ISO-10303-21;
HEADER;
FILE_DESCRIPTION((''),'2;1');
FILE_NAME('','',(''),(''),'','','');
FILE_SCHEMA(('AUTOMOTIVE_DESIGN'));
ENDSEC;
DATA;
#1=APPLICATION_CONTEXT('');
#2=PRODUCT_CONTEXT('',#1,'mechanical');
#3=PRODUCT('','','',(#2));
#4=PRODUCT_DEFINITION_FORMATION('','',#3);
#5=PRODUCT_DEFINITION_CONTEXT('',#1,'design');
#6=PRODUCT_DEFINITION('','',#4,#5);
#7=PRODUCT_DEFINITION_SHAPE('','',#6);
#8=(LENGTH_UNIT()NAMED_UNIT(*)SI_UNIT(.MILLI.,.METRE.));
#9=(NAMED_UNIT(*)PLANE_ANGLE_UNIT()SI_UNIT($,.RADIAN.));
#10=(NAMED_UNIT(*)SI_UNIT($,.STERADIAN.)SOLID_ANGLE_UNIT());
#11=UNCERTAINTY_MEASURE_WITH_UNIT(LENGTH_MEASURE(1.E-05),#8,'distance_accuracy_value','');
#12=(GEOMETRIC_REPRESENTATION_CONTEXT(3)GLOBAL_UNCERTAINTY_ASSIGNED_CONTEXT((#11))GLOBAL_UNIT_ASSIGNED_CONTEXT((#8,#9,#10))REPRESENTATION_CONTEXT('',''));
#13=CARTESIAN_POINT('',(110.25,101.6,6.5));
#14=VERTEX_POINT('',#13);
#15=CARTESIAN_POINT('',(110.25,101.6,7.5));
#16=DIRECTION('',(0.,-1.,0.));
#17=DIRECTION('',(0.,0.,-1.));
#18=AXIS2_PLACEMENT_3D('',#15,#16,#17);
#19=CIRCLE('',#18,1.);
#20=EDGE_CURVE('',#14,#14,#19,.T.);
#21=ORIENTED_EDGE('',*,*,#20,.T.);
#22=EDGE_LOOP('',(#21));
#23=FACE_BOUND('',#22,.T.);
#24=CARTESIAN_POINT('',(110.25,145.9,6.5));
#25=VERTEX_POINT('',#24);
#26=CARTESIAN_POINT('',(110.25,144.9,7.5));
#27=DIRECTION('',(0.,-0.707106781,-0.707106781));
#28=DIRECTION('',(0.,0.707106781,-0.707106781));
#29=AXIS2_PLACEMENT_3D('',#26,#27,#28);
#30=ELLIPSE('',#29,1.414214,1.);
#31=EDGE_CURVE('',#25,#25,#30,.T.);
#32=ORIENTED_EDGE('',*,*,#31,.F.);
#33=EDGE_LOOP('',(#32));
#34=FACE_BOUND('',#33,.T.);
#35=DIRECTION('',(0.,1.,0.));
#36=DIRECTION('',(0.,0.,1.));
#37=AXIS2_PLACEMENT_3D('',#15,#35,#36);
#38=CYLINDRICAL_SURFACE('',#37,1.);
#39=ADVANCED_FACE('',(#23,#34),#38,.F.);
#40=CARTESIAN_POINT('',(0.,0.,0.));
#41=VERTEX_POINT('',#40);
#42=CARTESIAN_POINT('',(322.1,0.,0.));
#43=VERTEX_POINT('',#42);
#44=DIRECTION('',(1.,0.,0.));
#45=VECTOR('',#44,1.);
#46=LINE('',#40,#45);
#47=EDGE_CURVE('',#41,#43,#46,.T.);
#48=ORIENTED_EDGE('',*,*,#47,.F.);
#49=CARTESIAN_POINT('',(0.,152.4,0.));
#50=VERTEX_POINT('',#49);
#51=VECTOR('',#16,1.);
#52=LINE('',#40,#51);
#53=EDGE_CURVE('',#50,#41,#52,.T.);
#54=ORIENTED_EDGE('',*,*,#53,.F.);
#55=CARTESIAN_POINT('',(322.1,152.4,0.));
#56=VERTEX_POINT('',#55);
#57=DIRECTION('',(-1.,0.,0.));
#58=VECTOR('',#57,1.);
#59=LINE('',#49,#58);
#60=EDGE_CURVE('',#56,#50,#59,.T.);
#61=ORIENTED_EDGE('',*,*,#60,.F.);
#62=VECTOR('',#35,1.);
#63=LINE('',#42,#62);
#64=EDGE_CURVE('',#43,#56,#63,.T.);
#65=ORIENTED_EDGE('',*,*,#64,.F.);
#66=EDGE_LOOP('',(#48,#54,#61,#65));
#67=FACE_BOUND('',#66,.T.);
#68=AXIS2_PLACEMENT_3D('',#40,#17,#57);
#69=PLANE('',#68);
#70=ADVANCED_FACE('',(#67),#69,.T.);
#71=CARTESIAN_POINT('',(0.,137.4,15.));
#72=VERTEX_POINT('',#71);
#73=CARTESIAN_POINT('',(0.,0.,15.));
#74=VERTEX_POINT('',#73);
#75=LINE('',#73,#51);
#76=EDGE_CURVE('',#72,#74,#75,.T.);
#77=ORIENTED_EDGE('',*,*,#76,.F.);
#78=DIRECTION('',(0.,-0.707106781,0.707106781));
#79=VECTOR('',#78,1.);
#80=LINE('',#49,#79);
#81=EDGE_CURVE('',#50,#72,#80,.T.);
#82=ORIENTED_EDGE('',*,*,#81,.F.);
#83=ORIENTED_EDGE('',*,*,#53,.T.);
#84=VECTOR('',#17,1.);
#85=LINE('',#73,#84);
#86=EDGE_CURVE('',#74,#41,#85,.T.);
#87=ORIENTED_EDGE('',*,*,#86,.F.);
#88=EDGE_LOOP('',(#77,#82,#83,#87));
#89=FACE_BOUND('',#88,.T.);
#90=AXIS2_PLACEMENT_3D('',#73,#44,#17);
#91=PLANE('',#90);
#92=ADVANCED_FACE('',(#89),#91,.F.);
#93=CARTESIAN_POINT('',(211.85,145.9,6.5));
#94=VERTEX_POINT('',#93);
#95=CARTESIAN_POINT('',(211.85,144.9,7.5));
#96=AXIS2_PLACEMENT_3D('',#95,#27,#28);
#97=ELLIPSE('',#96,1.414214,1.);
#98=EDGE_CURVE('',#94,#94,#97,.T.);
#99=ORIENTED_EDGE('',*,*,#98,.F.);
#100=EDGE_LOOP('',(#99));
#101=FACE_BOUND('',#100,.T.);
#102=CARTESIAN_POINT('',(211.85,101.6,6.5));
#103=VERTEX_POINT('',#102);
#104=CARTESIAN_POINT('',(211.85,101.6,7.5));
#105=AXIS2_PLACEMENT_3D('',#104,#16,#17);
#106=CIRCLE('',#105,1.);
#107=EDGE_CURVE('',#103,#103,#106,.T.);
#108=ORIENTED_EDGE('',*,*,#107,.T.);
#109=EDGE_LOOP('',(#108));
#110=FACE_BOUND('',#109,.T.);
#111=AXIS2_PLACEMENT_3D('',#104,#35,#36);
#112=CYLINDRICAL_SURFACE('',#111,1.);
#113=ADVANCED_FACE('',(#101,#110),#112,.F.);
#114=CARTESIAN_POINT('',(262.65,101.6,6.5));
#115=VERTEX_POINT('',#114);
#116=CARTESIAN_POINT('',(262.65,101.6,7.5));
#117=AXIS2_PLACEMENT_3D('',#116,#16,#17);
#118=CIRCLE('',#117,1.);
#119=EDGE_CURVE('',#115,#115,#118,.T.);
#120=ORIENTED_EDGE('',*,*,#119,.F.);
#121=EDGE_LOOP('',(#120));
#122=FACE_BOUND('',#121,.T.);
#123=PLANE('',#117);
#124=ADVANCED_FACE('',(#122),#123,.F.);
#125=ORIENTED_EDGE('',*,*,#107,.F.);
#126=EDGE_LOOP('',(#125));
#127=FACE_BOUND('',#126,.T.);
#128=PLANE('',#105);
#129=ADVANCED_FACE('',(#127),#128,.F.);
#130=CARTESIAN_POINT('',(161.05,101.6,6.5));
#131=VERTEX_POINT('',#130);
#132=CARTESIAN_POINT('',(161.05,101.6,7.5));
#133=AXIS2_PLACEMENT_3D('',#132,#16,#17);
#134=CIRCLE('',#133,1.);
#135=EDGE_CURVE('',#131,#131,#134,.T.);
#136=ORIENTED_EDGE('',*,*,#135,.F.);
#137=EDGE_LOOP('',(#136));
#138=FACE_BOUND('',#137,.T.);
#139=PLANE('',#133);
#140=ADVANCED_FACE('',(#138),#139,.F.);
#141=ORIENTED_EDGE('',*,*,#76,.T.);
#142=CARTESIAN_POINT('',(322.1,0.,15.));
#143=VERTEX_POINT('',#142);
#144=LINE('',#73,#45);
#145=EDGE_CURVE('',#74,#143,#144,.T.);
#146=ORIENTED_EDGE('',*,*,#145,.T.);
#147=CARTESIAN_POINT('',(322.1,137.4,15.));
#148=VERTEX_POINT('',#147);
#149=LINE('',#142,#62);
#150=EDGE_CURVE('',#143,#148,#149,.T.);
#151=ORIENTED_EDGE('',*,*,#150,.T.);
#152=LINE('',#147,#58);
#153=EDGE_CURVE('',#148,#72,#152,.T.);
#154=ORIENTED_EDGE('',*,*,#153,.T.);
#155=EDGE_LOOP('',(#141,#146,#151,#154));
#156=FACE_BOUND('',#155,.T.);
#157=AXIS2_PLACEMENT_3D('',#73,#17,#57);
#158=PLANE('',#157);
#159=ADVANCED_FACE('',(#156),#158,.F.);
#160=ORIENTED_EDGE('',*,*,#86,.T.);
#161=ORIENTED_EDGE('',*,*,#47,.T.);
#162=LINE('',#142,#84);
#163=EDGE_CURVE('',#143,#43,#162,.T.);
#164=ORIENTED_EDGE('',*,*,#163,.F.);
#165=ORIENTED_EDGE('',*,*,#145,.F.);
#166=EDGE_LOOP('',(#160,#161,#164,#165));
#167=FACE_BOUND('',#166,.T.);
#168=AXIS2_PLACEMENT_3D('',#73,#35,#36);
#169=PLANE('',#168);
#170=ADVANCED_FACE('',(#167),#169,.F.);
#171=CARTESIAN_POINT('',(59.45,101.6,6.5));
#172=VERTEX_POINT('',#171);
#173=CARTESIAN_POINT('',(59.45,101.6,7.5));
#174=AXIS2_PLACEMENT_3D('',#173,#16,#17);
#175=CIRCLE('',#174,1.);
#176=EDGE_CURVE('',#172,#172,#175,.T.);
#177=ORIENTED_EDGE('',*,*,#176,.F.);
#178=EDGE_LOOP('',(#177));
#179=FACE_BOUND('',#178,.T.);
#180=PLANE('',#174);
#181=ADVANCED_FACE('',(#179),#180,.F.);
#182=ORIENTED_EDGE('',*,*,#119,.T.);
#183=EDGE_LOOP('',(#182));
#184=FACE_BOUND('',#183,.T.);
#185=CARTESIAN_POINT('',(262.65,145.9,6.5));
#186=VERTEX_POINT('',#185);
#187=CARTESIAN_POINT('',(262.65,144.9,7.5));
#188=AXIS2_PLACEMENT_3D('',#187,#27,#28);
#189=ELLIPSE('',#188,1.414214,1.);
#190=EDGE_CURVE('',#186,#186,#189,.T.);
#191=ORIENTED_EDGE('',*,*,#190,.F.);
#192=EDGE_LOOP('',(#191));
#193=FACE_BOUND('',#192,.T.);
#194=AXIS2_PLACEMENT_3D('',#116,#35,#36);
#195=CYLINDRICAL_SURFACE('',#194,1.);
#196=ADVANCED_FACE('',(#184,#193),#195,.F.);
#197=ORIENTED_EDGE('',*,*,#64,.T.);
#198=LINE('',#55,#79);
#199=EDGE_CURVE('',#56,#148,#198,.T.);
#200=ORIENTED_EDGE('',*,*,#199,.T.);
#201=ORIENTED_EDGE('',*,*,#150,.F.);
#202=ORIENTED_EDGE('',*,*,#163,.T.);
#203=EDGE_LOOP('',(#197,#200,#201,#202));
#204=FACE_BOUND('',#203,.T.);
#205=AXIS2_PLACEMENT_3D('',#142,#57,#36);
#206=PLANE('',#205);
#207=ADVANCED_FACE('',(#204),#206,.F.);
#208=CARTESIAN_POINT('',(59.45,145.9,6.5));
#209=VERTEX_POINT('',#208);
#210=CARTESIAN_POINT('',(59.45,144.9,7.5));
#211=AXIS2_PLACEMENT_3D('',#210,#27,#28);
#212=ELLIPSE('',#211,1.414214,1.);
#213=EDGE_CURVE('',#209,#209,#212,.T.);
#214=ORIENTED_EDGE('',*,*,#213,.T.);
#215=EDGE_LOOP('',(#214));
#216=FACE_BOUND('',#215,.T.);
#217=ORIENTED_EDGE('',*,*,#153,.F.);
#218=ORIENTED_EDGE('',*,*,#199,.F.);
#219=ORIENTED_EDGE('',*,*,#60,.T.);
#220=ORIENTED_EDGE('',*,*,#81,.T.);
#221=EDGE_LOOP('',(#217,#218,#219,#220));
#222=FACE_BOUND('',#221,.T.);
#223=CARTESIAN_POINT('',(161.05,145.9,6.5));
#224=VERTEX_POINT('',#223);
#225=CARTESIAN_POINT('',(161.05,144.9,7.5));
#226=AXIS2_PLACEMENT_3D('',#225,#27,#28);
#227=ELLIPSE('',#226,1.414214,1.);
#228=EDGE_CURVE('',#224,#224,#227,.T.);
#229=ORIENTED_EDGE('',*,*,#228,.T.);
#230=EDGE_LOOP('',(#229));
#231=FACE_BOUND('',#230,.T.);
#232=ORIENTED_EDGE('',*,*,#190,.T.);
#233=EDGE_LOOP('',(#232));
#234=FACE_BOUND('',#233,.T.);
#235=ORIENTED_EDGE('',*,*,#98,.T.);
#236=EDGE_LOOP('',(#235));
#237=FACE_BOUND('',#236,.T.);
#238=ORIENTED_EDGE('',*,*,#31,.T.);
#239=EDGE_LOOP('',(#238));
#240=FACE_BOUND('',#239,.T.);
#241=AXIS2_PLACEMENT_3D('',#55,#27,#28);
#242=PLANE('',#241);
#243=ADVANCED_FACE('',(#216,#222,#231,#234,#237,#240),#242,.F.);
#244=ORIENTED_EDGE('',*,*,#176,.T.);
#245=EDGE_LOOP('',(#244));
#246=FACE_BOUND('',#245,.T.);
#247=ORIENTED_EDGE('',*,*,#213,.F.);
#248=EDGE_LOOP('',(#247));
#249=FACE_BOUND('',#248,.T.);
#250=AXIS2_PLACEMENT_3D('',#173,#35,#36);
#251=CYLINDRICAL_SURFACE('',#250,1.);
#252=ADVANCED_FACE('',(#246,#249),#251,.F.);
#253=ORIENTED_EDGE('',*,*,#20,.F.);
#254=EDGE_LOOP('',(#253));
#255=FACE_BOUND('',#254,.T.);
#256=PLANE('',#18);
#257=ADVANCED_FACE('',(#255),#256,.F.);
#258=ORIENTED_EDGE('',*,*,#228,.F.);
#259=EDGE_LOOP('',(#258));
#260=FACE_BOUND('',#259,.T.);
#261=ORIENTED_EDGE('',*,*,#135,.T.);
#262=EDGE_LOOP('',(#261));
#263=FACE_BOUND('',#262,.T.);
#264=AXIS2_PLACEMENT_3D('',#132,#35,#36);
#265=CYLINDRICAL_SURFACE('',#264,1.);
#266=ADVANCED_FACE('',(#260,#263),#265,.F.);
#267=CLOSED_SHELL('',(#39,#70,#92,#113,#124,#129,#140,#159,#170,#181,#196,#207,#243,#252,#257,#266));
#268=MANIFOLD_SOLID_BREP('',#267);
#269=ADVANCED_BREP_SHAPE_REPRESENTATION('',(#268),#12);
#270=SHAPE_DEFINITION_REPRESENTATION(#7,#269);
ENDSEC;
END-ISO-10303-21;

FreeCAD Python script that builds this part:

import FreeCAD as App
import Part
import Sketcher

V = App.Vector
Q = App.Units.Quantity

doc = App.newDocument("Part")
params = doc.addObject("Spreadsheet::Sheet", "Params")
for row, (alias, value) in enumerate([
    ("sketch1_width", "322.1 mm"),
    ("sketch1_height", "152.4 mm"),
    ("pad1_length", "15 mm"),
    ("sketch2_diameter", "2 mm"),
    ("pocket1_length", "50.8 mm"),
    ("sketch3_width", "15 mm"),
], start=1):
    params.set(f"A{row}", alias)
    params.set(f"B{row}", "=" + value)
    params.setAlias(f"B{row}", alias)

body = doc.addObject("PartDesign::Body", "Body")

# Sketch on XY plane
sketch1 = doc.addObject("Sketcher::SketchObject", "Sketch")
body.addObject(sketch1)
sketch1.AttachmentSupport = (doc.XY_Plane, [""])
sketch1.MapMode = "FlatFace"
sketch1.addGeometry([
    Part.LineSegment(V(0, 152, 0), V(0, 0, 0)),
    Part.LineSegment(V(0, 0, 0), V(322, 0, 0)),
    Part.LineSegment(V(322, 0, 0), V(322, 152, 0)),
    Part.LineSegment(V(322, 152, 0), V(0, 152, 0)),
], False)
sketch1.addConstraint([
    Sketcher.Constraint("Coincident", 0, 2, 1, 1),
    Sketcher.Constraint("Coincident", 1, 2, 2, 1),
    Sketcher.Constraint("Coincident", 2, 2, 3, 1),
    Sketcher.Constraint("Coincident", 3, 2, 0, 1),
    Sketcher.Constraint("Vertical", 0),
    Sketcher.Constraint("Horizontal", 1),
    Sketcher.Constraint("Vertical", 2),
    Sketcher.Constraint("Horizontal", 3),
    Sketcher.Constraint("Coincident", 0, 2, -1, 1),
    Sketcher.Constraint("DistanceX", 1, 1, 1, 2, Q("322.1 mm")),
    Sketcher.Constraint("DistanceY", 0, 2, 0, 1, Q("152.4 mm")),
])
sketch1.setExpression("Constraints[9]", "Params.sketch1_width")
sketch1.setExpression("Constraints[10]", "Params.sketch1_height")
pad1 = doc.addObject("PartDesign::Pad", "Pad")
body.addObject(pad1)
pad1.Profile = sketch1
pad1.setExpression("Length", "Params.pad1_length")

# Sketch on XZ plane
sketch2 = doc.addObject("Sketcher::SketchObject", "Sketch001")
body.addObject(sketch2)
sketch2.AttachmentSupport = (doc.XZ_Plane, [""])
sketch2.MapMode = "FlatFace"
sketch2.AttachmentOffset = App.Placement(V(0, 0, -152.4), App.Rotation())
sketch2.addGeometry([
    Part.Circle(V(161.1, 7.5, 0), V(0, 0, 1), 1),  # 0
    Part.Circle(V(211.8, 7.5, 0), V(0, 0, 1), 1),  # 1
    Part.Circle(V(262.6, 7.5, 0), V(0, 0, 1), 1),  # 2
    Part.Circle(V(110.2, 7.5, 0), V(0, 0, 1), 1),  # 3
    Part.Circle(V(59.5, 7.5, 0), V(0, 0, 1), 1),  # 4
], False)
sketch2.addConstraint([
    Sketcher.Constraint("Equal", 0, 1),
    Sketcher.Constraint("Equal", 1, 2),
    Sketcher.Constraint("Equal", 2, 3),
    Sketcher.Constraint("Equal", 3, 4),
    Sketcher.Constraint("Horizontal", 0, 3, 1, 3),
    Sketcher.Constraint("Horizontal", 1, 3, 2, 3),
    Sketcher.Constraint("Horizontal", 2, 3, 3, 3),
    Sketcher.Constraint("Horizontal", 3, 3, 4, 3),
    Sketcher.Constraint("Diameter", 0, Q("2 mm")),
    Sketcher.Constraint("DistanceY", -1, 1, 0, 3, Q("7.5 mm")),
    Sketcher.Constraint("DistanceX", 0, 3, 1, 3, Q("50.8 mm")),
    Sketcher.Constraint("DistanceX", 1, 3, 2, 3, Q("50.8 mm")),
    Sketcher.Constraint("DistanceX", 3, 3, 0, 3, Q("50.8 mm")),
    Sketcher.Constraint("DistanceX", 4, 3, 3, 3, Q("50.8 mm")),
    Sketcher.Constraint("DistanceX", -1, 1, 0, 3, Q("161.05 mm")),
])
sketch2.setExpression("Constraints[8]", "Params.sketch2_diameter")
pocket1 = doc.addObject("PartDesign::Pocket", "Pocket")
body.addObject(pocket1)
pocket1.Profile = sketch2
pocket1.setExpression("Length", "Params.pocket1_length")
pocket1.Reversed = True

# Sketch on YZ plane
sketch3 = doc.addObject("Sketcher::SketchObject", "Sketch002")
body.addObject(sketch3)
sketch3.AttachmentSupport = (doc.YZ_Plane, [""])
sketch3.MapMode = "FlatFace"
sketch3.addGeometry([
    Part.LineSegment(V(152, 0, 0), V(137, 15, 0)),
    Part.LineSegment(V(137, 15, 0), V(152, 15, 0)),
    Part.LineSegment(V(152, 15, 0), V(152, 0, 0)),
], False)
sketch3.addConstraint([
    Sketcher.Constraint("Coincident", 0, 2, 1, 1),
    Sketcher.Constraint("Coincident", 1, 2, 2, 1),
    Sketcher.Constraint("Coincident", 2, 2, 0, 1),
    Sketcher.Constraint("Horizontal", 1),
    Sketcher.Constraint("Vertical", 2),
    Sketcher.Constraint("PointOnObject", 2, 2, -1),
    Sketcher.Constraint("Equal", 1, 2),
    Sketcher.Constraint("DistanceX", 1, 1, 1, 2, Q("15 mm")),
    Sketcher.Constraint("DistanceX", -1, 1, 0, 2, Q("137.4 mm")),
])
sketch3.setExpression("Constraints[7]", "Params.sketch3_width")
pocket2 = doc.addObject("PartDesign::Pocket", "Pocket001")
body.addObject(pocket2)
pocket2.Profile = sketch3
pocket2.Type = "ThroughAll"
pocket2.Reversed = True

doc.recompute()
